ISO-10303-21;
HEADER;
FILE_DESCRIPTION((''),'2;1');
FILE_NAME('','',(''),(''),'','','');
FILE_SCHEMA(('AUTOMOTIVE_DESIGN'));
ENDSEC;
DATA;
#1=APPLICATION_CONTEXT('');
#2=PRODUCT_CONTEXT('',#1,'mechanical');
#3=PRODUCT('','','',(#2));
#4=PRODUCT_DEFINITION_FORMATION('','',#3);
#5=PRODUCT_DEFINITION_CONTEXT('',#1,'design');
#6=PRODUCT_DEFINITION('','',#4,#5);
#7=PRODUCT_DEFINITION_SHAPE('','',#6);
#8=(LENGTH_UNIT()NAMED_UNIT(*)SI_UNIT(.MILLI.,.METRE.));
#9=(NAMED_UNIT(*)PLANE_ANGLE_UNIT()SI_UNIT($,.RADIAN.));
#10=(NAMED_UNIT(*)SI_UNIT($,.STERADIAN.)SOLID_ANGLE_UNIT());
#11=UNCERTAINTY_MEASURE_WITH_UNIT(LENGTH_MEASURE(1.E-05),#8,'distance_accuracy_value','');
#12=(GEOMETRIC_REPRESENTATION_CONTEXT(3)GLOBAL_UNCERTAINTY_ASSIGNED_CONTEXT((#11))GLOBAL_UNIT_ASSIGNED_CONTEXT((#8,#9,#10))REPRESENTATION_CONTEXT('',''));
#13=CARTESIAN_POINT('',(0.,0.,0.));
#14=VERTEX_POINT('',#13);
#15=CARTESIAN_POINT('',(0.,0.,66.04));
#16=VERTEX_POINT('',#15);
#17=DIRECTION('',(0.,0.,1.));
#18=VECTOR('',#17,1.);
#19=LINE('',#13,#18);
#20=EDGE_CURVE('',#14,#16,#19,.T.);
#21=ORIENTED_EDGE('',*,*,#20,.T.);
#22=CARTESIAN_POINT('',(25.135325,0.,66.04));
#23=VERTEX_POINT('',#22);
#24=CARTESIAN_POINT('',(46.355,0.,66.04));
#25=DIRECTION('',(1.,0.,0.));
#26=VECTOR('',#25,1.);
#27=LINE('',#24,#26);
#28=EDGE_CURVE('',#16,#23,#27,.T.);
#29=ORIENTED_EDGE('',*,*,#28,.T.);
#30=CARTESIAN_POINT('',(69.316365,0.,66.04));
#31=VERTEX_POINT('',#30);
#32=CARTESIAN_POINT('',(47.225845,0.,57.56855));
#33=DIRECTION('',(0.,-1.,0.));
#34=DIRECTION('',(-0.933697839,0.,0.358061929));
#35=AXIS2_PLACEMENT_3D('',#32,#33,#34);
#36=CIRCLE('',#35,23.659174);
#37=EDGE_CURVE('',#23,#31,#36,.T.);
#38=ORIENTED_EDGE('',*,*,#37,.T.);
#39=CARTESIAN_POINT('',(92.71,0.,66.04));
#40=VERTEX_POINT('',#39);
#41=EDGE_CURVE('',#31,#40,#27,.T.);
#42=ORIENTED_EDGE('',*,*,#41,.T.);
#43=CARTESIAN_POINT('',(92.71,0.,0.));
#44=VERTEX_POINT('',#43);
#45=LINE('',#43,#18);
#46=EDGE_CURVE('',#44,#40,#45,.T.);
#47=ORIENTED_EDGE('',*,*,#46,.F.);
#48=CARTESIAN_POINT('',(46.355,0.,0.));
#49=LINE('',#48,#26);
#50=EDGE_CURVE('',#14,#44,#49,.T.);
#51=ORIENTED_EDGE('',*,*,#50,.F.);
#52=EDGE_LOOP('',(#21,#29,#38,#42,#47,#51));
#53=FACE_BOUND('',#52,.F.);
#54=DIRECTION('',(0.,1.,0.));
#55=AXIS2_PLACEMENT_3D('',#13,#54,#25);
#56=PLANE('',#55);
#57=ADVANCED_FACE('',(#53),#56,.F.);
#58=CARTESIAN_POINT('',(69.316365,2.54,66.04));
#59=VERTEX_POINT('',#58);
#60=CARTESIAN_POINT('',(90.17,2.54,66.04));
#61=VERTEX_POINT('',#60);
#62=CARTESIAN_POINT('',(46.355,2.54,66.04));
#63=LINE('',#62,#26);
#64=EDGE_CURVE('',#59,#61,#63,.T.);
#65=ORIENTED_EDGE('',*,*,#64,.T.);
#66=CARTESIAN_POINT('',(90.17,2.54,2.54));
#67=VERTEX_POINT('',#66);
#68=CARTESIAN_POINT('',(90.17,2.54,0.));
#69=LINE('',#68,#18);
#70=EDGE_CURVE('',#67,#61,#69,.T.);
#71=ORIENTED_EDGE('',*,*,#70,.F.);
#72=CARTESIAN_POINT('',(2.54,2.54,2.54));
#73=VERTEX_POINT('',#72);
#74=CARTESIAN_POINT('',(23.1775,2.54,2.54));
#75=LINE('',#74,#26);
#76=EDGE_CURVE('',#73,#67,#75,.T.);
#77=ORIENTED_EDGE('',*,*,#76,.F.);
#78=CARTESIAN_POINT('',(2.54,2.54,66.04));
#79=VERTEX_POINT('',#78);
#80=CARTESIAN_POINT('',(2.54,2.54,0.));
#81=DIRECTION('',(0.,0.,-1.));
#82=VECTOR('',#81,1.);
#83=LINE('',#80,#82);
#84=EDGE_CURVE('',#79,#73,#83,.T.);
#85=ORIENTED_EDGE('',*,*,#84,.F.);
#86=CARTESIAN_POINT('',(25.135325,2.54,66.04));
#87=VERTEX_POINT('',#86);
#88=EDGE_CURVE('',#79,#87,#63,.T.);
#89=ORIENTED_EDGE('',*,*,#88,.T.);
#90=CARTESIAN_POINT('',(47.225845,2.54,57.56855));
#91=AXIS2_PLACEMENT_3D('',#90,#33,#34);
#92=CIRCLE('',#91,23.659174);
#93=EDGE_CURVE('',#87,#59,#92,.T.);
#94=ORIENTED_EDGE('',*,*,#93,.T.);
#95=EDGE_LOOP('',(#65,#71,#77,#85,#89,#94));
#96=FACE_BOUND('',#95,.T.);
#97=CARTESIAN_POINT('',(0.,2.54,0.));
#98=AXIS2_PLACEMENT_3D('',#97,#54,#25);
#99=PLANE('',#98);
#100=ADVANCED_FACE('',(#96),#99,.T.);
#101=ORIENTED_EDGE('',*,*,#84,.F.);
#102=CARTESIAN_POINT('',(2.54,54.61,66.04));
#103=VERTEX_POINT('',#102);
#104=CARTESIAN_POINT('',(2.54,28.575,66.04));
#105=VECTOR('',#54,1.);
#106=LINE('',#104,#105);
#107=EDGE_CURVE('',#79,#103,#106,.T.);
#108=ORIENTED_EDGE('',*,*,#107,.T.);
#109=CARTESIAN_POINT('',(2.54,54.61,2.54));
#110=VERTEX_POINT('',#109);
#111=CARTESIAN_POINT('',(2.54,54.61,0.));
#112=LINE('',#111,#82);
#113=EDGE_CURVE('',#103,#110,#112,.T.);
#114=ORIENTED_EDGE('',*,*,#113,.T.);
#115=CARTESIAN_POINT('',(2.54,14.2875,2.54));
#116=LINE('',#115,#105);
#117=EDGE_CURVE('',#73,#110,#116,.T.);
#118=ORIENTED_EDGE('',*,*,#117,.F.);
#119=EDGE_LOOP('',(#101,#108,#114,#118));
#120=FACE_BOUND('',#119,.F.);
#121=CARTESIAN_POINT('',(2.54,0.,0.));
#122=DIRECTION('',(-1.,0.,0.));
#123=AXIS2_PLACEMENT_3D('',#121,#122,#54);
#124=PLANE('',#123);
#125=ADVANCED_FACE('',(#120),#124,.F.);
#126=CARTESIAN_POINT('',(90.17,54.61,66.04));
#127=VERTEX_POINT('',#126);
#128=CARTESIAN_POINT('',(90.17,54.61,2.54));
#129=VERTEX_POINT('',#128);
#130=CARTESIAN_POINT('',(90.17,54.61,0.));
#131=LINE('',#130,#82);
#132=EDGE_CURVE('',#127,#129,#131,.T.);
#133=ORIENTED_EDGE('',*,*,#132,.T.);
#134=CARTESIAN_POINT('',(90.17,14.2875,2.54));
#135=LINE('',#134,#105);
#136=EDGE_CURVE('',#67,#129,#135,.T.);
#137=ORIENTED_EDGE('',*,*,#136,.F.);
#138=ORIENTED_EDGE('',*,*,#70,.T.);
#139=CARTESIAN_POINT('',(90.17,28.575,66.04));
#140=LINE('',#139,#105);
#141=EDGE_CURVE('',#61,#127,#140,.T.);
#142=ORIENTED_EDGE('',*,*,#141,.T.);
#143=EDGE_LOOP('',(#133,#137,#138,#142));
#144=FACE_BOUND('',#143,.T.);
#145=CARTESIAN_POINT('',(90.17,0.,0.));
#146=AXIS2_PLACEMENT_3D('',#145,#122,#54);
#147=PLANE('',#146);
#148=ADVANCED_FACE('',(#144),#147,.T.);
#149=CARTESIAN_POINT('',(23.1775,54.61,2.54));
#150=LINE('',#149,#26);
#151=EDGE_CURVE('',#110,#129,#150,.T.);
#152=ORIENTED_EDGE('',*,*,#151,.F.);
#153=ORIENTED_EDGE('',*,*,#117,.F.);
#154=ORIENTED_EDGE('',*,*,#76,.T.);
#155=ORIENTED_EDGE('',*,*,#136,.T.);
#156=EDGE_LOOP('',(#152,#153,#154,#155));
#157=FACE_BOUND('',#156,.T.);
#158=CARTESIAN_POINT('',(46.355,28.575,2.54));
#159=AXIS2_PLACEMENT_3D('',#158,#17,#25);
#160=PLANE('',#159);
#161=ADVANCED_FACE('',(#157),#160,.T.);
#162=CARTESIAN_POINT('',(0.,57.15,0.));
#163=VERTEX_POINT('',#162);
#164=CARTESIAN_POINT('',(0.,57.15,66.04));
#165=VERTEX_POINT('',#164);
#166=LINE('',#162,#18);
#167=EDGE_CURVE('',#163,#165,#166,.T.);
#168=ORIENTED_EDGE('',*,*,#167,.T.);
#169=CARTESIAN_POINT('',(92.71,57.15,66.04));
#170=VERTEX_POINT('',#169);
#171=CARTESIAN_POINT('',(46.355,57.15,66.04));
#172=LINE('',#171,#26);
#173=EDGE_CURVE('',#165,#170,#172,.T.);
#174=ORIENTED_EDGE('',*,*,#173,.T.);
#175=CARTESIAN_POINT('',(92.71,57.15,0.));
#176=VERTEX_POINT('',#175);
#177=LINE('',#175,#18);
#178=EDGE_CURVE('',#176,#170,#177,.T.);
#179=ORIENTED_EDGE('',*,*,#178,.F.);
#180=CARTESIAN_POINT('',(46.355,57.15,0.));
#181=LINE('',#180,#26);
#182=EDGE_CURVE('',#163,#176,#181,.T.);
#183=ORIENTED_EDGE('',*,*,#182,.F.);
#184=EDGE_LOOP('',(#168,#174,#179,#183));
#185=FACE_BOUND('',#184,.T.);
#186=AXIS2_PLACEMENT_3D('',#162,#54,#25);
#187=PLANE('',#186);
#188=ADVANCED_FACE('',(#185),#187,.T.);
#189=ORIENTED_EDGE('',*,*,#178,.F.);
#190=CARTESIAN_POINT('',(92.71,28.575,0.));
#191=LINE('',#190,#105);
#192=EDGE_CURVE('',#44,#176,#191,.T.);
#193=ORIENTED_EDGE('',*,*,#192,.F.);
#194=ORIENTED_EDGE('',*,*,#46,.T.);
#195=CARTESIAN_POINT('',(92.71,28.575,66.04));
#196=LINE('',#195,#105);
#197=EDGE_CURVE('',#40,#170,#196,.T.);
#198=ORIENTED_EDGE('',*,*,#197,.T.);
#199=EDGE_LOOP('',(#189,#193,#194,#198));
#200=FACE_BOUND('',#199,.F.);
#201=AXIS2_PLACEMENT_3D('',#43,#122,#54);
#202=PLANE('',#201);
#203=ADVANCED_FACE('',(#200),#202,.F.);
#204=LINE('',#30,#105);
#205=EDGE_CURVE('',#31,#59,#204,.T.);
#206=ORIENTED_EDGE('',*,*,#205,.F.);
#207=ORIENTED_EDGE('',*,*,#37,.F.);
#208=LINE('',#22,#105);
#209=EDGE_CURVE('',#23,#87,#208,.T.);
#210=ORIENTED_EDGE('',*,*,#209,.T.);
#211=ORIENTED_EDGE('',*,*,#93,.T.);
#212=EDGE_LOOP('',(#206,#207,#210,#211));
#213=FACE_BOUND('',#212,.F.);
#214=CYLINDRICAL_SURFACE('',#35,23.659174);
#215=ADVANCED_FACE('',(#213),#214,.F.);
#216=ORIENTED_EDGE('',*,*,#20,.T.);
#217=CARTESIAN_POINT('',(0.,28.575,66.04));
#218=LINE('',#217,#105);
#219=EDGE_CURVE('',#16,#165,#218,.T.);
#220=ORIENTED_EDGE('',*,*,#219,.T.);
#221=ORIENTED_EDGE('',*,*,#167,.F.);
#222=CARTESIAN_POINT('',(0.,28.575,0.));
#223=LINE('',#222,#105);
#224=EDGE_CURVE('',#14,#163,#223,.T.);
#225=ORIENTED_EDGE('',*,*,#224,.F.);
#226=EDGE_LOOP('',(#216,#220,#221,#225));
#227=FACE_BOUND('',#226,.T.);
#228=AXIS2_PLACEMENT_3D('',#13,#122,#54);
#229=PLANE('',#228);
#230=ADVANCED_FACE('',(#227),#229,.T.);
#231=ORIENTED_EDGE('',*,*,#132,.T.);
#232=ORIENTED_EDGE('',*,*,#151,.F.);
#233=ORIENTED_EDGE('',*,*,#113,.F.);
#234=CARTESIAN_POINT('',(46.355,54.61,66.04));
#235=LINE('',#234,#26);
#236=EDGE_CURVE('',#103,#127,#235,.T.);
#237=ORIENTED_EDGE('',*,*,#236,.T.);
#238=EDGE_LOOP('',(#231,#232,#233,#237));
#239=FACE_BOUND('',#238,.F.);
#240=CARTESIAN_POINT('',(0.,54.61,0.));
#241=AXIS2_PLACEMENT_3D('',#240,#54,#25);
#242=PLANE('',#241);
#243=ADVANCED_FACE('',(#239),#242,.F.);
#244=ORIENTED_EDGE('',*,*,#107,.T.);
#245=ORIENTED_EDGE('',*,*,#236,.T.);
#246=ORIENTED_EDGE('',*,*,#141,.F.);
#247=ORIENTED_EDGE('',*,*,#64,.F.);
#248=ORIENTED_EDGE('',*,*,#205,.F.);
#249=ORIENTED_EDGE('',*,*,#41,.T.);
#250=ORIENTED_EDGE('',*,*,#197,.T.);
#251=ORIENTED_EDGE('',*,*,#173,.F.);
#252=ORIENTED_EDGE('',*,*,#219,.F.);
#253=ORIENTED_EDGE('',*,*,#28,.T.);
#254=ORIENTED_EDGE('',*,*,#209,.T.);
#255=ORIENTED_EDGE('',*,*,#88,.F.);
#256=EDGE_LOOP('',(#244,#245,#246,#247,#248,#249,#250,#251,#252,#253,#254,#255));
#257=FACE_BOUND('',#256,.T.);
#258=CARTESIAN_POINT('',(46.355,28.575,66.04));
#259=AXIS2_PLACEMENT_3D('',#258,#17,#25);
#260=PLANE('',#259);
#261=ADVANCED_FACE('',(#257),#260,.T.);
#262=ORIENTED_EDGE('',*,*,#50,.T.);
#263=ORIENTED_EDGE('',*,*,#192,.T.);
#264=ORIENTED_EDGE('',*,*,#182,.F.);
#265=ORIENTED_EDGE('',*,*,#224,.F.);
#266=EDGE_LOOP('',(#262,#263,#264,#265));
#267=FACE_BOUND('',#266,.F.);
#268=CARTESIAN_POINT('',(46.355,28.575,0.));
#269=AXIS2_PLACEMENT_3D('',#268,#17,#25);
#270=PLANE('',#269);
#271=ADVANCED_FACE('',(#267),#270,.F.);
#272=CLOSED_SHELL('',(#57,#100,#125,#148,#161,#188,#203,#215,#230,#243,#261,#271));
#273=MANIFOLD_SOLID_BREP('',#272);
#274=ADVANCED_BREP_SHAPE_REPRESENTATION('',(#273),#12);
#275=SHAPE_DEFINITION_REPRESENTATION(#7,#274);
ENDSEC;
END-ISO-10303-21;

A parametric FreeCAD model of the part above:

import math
import FreeCAD as App
import Part
import Sketcher
from FreeCAD import Vector
Q = App.Units.Quantity


def faces_at(feature, points):
    """Names of the faces that lie closest to the given points."""
    faces = feature.Shape.Faces
    near = lambda p: min(range(len(faces)), key=lambda i: faces[i].distToShape(Part.Vertex(*p))[0])
    return sorted({f"Face{near(p) + 1}" for p in points})

doc = App.newDocument("Part")
body = doc.addObject("PartDesign::Body", "Body")

sketch1 = body.newObject("Sketcher::SketchObject", "Sketch")
sketch1.AttachmentSupport = (doc.getObject("XY_Plane"), [""])
sketch1.MapMode = "FlatFace"
sketch1.addGeometry(Part.LineSegment(Vector(0, 57, 0), Vector(0, 0, 0)), False)
sketch1.addGeometry(Part.LineSegment(Vector(0, 0, 0), Vector(93, 0, 0)), False)
sketch1.addGeometry(Part.LineSegment(Vector(93, 0, 0), Vector(93, 57, 0)), False)
sketch1.addGeometry(Part.LineSegment(Vector(93, 57, 0), Vector(0, 57, 0)), False)
sketch1.addConstraint(Sketcher.Constraint("Coincident", 0, 2, 1, 1))
sketch1.addConstraint(Sketcher.Constraint("Coincident", 1, 2, 2, 1))
sketch1.addConstraint(Sketcher.Constraint("Coincident", 2, 2, 3, 1))
sketch1.addConstraint(Sketcher.Constraint("Coincident", 3, 2, 0, 1))
sketch1.addConstraint(Sketcher.Constraint("Vertical", 0))
sketch1.addConstraint(Sketcher.Constraint("Horizontal", 1))
sketch1.addConstraint(Sketcher.Constraint("Vertical", 2))
sketch1.addConstraint(Sketcher.Constraint("Horizontal", 3))
sketch1.addConstraint(Sketcher.Constraint("Coincident", 0, 2, -1, 1))
sketch1.addConstraint(Sketcher.Constraint("DistanceX", 1, 1, 1, 2, Q("3.65 in")))
sketch1.addConstraint(Sketcher.Constraint("DistanceY", 0, 2, 0, 1, Q("2.25 in")))
pad1 = body.newObject("PartDesign::Pad", "Pad")
pad1.Profile = sketch1
pad1.Length = Q("2.6 in")
doc.recompute()

thickness = body.newObject("PartDesign::Thickness", "Thickness")
thickness.Base = (pad1, faces_at(pad1, [(46.355, 28.575, 66.04)]))
thickness.Value = Q("0.1 in")
thickness.Reversed = True
thickness.Join = "Arc"

sketch2 = body.newObject("Sketcher::SketchObject", "Sketch001")
sketch2.AttachmentSupport = (doc.getObject("XZ_Plane"), [""])
sketch2.MapMode = "FlatFace"
sketch2.addGeometry(Part.LineSegment(Vector(56, 66, 0), Vector(36, 66, 0)), False)
sketch2.addGeometry(Part.ArcOfCircle(Part.Circle(Vector(46, 61, 0), Vector(0, 0, 1), 11), math.radians(155), math.radians(385)), False)
sketch2.addConstraint(Sketcher.Constraint("Coincident", 0, 1, 1, 2))
sketch2.addConstraint(Sketcher.Constraint("Coincident", 1, 1, 0, 2))
sketch2.addConstraint(Sketcher.Constraint("Horizontal", 0))
sketch2.addConstraint(Sketcher.Constraint("Radius", 1, Q("0.442 in")))
sketch2.addConstraint(Sketcher.Constraint("DistanceY", -1, 1, 0, 1, Q("2.6 in")))
sketch2.addConstraint(Sketcher.Constraint("DistanceX", 0, 2, 0, 1, Q("20.333819 mm")))
sketch2.addConstraint(Sketcher.Constraint("DistanceX", -1, 1, 1, 3, Q("46.176049 mm")))
pocket1 = body.newObject("PartDesign::Pocket", "Pocket")
pocket1.Profile = sketch2
pocket1.Length = Q("1 in")

sketch3 = body.newObject("Sketcher::SketchObject", "Sketch002")
sketch3.AttachmentSupport = (doc.getObject("XZ_Plane"), [""])
sketch3.MapMode = "FlatFace"
sketch3.addGeometry(Part.LineSegment(Vector(36, 66, 0), Vector(25, 66, 0)), False)
sketch3.addGeometry(Part.ArcOfCircle(Part.Circle(Vector(47, 58, 0), Vector(0, 0, 1), 24), math.radians(159), math.radians(381)), False)
sketch3.addGeometry(Part.LineSegment(Vector(69, 66, 0), Vector(56, 66, 0)), False)
sketch3.addGeometry(Part.ArcOfCircle(Part.Circle(Vector(46, 61, 0), Vector(0, 0, 1), 11), math.radians(155), math.radians(385)), False)
sketch3.addConstraint(Sketcher.Constraint("Coincident", 0, 2, 1, 1))
sketch3.addConstraint(Sketcher.Constraint("Coincident", 1, 2, 2, 1))
sketch3.addConstraint(Sketcher.Constraint("Coincident", 2, 2, 3, 2))
sketch3.addConstraint(Sketcher.Constraint("Coincident", 3, 1, 0, 1))
sketch3.addConstraint(Sketcher.Constraint("Horizontal", 0))
sketch3.addConstraint(Sketcher.Constraint("Horizontal", 2))
sketch3.addConstraint(Sketcher.Constraint("Horizontal", 0, 2, 1, 2))
sketch3.addConstraint(Sketcher.Constraint("Radius", 3, Q("0.442 in")))
sketch3.addConstraint(Sketcher.Constraint("DistanceY", -1, 1, 0, 2, Q("2.6 in")))
sketch3.addConstraint(Sketcher.Constraint("Radius", 1, Q("23.659174 mm")))
sketch3.addConstraint(Sketcher.Constraint("DistanceX", 0, 2, 0, 1, Q("10.873815 mm")))
sketch3.addConstraint(Sketcher.Constraint("DistanceX", 2, 2, 2, 1, Q("12.973406 mm")))
sketch3.addConstraint(Sketcher.Constraint("DistanceY", -1, 1, 1, 3, Q("57.56855 mm")))
sketch3.addConstraint(Sketcher.Constraint("DistanceX", -1, 1, 3, 3, Q("46.176049 mm")))
pocket2 = body.newObject("PartDesign::Pocket", "Pocket001")
pocket2.Profile = sketch3
pocket2.Length = Q("1 in")

doc.recompute()
